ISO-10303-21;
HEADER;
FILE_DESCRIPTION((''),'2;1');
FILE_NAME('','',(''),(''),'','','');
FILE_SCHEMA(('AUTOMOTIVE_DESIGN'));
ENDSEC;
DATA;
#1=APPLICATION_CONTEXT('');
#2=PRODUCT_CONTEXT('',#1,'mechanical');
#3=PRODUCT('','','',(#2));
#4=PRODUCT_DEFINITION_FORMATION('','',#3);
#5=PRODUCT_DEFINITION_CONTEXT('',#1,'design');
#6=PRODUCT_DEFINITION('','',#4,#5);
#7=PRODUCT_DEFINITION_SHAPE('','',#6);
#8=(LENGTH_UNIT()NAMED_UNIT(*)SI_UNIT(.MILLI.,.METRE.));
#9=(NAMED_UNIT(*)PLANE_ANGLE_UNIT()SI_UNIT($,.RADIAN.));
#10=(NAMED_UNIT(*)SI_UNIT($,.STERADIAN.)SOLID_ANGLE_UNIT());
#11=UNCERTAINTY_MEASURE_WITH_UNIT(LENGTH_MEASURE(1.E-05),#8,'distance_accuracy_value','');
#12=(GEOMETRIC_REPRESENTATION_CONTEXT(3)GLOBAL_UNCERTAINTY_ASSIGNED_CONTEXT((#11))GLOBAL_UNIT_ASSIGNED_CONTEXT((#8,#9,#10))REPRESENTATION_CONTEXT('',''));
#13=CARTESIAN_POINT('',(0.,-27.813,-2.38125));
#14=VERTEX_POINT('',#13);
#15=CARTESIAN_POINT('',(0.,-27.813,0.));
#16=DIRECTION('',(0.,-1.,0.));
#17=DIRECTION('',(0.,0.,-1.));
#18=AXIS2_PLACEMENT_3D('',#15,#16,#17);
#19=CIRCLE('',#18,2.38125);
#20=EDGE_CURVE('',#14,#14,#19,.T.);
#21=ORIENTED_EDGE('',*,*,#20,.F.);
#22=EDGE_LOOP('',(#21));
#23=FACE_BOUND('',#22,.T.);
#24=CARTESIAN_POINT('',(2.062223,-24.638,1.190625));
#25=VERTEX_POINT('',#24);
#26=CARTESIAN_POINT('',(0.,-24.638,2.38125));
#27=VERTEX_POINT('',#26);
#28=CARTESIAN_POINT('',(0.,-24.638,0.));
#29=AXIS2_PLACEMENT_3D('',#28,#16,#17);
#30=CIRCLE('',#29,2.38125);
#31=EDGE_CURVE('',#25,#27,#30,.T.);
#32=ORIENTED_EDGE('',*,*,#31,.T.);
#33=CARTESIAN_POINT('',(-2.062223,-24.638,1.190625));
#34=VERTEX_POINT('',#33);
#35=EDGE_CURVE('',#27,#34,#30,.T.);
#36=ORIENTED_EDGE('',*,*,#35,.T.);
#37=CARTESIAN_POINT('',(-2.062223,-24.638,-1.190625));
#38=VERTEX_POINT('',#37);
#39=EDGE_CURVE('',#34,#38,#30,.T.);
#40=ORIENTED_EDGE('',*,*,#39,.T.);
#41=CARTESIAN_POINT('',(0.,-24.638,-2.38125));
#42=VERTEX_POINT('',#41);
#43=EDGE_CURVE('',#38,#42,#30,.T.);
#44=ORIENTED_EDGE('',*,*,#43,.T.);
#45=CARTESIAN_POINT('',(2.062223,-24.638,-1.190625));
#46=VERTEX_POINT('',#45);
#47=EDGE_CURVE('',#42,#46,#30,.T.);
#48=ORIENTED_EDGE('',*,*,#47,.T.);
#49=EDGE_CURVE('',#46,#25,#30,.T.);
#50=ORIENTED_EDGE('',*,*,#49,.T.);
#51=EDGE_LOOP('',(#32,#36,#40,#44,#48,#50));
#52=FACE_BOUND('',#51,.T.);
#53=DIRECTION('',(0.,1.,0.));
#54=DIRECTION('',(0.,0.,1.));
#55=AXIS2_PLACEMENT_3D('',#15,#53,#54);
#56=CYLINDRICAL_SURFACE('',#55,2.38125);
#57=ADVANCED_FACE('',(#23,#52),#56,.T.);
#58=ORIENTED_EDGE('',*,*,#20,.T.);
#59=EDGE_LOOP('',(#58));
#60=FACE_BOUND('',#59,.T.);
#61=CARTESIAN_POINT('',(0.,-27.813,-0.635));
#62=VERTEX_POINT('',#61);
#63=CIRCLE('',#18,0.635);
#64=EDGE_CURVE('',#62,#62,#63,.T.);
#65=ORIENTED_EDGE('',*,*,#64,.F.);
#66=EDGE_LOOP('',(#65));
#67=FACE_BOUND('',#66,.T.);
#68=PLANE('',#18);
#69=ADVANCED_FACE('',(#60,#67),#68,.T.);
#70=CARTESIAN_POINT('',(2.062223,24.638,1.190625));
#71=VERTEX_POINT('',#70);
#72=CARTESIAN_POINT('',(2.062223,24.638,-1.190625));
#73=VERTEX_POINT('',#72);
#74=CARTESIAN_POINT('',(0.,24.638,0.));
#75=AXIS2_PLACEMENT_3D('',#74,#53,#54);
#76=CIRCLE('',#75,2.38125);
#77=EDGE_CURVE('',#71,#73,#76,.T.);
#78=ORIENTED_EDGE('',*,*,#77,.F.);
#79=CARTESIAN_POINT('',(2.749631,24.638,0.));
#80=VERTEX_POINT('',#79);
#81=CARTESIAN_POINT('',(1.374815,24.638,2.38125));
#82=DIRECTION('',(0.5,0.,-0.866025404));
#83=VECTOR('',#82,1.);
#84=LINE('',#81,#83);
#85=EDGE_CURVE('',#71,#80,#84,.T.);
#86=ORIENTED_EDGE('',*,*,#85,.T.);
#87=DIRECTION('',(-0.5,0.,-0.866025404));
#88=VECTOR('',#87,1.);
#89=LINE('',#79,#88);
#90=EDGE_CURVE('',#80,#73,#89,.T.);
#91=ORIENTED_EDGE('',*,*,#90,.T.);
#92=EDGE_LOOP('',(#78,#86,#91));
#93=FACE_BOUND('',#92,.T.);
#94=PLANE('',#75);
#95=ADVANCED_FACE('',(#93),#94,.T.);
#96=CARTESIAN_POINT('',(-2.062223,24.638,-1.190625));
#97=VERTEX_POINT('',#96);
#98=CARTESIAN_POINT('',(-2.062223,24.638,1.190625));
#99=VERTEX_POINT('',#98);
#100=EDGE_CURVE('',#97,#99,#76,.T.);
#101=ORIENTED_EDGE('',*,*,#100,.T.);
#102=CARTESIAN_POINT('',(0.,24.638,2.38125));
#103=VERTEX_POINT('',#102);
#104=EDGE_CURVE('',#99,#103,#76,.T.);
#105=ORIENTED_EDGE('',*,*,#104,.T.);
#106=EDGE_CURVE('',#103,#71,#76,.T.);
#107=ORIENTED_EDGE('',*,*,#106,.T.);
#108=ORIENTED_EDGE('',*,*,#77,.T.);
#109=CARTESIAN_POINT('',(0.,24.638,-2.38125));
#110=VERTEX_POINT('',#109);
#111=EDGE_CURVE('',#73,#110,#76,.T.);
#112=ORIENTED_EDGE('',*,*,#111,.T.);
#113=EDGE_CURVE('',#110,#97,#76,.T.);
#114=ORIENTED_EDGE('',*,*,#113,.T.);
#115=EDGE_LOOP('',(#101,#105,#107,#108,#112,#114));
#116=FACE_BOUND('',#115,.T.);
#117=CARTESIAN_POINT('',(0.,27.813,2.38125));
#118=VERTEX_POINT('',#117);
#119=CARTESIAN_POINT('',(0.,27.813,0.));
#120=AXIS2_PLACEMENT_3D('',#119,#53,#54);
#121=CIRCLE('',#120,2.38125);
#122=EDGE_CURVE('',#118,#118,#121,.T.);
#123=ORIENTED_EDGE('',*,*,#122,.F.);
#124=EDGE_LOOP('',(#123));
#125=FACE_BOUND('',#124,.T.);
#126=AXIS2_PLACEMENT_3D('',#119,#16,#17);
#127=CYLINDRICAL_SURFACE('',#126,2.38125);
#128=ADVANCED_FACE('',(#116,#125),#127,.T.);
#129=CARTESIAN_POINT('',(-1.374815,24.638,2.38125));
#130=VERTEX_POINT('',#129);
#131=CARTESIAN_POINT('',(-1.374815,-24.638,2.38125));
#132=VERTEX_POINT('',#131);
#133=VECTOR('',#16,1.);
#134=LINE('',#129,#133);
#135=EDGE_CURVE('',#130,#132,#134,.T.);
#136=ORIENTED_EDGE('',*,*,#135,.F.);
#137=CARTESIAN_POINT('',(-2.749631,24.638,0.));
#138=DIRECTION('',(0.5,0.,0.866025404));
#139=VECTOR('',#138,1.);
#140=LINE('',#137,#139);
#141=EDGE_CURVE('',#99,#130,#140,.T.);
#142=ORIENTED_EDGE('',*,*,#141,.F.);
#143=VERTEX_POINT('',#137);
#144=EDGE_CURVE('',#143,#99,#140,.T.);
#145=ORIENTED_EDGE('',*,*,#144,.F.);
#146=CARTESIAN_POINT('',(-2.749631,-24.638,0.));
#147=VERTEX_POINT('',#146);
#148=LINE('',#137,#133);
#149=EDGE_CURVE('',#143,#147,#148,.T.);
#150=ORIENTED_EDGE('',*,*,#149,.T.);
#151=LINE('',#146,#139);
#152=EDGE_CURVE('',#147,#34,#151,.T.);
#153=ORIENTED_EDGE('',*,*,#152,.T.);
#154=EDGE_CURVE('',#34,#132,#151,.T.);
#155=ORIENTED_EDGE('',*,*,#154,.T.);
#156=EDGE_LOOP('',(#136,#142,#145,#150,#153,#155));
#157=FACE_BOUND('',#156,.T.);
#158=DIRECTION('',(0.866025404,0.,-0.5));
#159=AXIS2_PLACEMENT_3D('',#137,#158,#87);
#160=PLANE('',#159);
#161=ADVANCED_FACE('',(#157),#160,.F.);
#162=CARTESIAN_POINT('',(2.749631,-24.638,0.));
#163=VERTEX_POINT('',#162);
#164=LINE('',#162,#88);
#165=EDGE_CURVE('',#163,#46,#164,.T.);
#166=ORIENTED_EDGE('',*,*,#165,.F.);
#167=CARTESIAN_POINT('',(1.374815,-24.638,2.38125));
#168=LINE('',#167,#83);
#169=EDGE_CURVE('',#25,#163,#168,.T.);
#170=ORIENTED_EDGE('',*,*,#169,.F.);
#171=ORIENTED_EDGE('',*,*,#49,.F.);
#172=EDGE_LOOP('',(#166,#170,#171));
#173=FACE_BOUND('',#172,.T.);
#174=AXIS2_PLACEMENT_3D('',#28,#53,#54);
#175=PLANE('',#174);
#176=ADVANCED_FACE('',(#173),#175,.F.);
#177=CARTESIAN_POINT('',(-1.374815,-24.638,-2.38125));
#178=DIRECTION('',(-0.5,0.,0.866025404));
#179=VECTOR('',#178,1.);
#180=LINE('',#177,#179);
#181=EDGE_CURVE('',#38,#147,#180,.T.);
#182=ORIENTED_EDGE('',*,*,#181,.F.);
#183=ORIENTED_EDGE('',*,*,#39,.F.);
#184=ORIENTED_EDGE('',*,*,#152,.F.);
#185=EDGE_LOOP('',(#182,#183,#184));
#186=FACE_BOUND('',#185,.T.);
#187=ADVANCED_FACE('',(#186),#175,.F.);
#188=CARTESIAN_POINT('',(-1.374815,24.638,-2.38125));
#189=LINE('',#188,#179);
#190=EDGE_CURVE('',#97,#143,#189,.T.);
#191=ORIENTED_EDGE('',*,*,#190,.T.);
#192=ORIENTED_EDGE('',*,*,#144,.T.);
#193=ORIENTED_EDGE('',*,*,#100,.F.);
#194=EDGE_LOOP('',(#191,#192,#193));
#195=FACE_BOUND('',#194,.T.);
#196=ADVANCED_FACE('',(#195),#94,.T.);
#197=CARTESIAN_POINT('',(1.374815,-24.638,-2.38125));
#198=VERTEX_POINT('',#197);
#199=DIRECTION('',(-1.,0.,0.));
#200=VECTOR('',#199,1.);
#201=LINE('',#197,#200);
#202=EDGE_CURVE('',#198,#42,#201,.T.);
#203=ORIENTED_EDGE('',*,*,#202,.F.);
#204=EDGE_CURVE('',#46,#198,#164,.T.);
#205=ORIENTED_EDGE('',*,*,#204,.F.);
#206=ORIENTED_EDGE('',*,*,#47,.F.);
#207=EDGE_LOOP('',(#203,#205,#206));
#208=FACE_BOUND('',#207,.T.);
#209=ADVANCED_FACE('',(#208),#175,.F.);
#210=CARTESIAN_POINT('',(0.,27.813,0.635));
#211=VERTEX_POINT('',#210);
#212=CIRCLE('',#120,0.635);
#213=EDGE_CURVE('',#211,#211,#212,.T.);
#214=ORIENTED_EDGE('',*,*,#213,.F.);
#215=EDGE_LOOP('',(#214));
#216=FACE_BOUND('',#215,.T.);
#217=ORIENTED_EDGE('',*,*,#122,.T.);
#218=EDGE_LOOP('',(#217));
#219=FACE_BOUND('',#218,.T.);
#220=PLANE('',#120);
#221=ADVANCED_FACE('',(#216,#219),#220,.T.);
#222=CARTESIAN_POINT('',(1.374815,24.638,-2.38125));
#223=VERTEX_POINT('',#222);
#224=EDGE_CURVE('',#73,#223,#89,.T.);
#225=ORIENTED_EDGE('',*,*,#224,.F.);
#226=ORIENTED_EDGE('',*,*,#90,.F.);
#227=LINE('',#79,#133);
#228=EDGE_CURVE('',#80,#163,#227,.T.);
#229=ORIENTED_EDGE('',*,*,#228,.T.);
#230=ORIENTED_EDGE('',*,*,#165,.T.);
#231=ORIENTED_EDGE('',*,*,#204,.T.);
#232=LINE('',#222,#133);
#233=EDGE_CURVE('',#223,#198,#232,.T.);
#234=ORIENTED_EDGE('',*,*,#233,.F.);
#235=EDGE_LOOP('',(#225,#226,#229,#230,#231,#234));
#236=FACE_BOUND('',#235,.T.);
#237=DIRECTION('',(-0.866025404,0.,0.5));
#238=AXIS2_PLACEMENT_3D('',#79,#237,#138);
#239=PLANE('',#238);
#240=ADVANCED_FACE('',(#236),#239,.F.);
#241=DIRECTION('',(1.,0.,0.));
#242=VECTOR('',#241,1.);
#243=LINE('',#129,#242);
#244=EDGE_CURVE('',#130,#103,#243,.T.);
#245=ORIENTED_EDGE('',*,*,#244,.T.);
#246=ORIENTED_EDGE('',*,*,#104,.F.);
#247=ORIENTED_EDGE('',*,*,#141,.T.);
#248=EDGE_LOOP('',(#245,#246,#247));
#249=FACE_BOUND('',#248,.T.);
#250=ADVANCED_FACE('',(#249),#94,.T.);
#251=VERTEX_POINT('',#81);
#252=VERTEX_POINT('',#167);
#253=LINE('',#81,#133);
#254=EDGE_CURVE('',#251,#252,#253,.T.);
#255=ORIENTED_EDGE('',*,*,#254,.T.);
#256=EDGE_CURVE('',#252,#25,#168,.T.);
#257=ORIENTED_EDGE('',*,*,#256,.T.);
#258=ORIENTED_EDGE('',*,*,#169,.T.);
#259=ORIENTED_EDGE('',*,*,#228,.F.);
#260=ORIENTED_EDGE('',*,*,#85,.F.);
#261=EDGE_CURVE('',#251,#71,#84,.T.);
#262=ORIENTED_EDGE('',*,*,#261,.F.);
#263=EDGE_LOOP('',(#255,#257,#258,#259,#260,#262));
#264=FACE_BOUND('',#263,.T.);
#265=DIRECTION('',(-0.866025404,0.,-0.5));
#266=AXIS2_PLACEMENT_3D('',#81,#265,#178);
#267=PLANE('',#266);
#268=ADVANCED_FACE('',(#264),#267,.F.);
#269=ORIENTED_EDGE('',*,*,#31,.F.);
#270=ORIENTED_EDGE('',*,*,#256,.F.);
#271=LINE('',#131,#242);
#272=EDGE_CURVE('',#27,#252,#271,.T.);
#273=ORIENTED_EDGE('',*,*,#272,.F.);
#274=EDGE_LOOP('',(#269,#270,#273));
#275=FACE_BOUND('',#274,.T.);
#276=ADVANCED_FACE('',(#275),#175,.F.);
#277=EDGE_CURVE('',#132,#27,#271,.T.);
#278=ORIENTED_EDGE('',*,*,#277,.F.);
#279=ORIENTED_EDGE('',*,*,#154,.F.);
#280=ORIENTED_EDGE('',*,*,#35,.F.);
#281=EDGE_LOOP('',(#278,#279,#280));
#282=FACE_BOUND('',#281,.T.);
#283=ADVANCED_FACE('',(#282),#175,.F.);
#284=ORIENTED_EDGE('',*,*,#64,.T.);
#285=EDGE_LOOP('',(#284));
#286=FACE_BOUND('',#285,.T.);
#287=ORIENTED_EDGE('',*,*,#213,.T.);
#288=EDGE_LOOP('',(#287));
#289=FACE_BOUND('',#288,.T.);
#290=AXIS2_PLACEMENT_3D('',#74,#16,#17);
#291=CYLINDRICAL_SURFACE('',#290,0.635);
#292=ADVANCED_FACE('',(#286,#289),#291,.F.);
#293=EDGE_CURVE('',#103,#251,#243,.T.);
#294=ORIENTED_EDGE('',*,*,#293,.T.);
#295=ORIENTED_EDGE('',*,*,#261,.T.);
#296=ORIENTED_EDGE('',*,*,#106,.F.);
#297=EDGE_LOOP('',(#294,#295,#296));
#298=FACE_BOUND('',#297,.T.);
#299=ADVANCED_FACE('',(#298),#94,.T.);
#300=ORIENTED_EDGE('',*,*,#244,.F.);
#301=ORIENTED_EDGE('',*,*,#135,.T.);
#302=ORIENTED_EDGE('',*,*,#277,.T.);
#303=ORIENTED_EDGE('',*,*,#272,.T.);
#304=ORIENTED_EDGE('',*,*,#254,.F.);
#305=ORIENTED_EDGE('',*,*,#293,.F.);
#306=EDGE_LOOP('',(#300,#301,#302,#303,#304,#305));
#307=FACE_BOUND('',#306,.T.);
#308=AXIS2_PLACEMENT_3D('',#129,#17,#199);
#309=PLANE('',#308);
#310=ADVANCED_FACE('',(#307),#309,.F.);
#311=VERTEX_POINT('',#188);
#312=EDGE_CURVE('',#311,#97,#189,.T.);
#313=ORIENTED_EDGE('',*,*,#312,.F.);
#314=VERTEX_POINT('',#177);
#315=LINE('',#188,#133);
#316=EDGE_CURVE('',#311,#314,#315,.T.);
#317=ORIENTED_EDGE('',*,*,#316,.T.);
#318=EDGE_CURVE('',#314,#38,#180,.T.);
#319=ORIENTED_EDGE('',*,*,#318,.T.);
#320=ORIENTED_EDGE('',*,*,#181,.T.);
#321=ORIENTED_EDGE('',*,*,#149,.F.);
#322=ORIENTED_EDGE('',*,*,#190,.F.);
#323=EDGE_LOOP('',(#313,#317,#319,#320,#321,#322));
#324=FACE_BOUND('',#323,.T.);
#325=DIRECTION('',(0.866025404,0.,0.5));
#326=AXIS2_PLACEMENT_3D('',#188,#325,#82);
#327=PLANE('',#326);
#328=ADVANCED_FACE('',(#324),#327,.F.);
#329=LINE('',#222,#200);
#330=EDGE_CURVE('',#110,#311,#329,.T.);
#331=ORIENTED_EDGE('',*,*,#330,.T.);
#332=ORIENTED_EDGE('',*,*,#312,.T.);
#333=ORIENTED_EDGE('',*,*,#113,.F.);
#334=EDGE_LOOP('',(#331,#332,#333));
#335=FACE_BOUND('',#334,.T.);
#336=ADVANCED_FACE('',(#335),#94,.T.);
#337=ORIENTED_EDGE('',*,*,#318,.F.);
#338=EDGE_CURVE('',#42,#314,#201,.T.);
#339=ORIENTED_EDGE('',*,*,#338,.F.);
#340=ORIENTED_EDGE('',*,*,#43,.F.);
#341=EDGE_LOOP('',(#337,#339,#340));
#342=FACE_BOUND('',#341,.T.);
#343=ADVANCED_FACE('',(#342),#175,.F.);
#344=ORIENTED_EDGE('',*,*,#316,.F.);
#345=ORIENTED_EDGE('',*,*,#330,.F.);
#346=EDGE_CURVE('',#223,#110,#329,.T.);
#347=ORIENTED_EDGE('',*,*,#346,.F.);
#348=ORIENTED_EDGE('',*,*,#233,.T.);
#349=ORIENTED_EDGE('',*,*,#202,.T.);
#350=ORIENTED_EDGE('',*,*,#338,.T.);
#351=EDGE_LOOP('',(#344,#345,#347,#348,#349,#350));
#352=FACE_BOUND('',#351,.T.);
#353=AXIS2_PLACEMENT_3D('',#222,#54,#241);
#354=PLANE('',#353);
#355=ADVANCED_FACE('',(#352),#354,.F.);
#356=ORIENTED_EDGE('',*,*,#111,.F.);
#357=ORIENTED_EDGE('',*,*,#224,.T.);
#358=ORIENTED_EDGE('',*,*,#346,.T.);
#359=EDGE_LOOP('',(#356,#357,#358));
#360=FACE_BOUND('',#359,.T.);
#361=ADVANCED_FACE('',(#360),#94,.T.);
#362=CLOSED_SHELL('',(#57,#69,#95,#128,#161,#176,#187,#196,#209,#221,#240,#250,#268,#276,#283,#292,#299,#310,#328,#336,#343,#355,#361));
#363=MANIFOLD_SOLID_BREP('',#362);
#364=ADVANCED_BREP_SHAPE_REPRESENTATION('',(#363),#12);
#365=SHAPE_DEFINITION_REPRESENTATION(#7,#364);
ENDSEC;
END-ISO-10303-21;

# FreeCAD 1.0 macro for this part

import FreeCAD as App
import Part
import Sketcher
from FreeCAD import Vector
Q = App.Units.Quantity

doc = App.newDocument("Part")
body = doc.addObject("PartDesign::Body", "Body")

sketch1 = body.newObject("Sketcher::SketchObject", "Sketch")
sketch1.AttachmentSupport = (doc.getObject("XZ_Plane"), [""])
sketch1.MapMode = "FlatFace"
sketch1.addGeometry([
    Part.LineSegment(Vector(1.4, 2.4, 0), Vector(2.7, 0, 0)),
    Part.LineSegment(Vector(2.7, 0, 0), Vector(1.4, -2.4, 0)),
    Part.LineSegment(Vector(1.4, -2.4, 0), Vector(-1.4, -2.4, 0)),
    Part.LineSegment(Vector(-1.4, -2.4, 0), Vector(-2.7, 0, 0)),
    Part.LineSegment(Vector(-2.7, 0, 0), Vector(-1.4, 2.4, 0)),
    Part.LineSegment(Vector(-1.4, 2.4, 0), Vector(1.4, 2.4, 0)),
    Part.Circle(Vector(0, 0, 0), Vector(0, 0, 1), 0.6),
], False)
sketch1.addConstraint([
    Sketcher.Constraint("Coincident", 0, 2, 1, 1),
    Sketcher.Constraint("Coincident", 1, 2, 2, 1),
    Sketcher.Constraint("Coincident", 2, 2, 3, 1),
    Sketcher.Constraint("Coincident", 3, 2, 4, 1),
    Sketcher.Constraint("Coincident", 4, 2, 5, 1),
    Sketcher.Constraint("Coincident", 5, 2, 0, 1),
    Sketcher.Constraint("Horizontal", 2),
    Sketcher.Constraint("Horizontal", 5),
    Sketcher.Constraint("Coincident", 6, 3, -1, 1),
    Sketcher.Constraint("Symmetric", 0, 2, 3, 2, -1, 1),
    Sketcher.Constraint("Symmetric", 1, 2, 4, 2, -1, 1),
    Sketcher.Constraint("PointOnObject", 0, 2, -1),
    Sketcher.Constraint("Parallel", 0, 3),
    Sketcher.Constraint("Vertical", 2, 2, 4, 2),
    Sketcher.Constraint("Diameter", 6, Q("0.05 in")),
    Sketcher.Constraint("Angle", 0, Q("-60 deg")),
    Sketcher.Constraint("DistanceY", 1, 2, -1, 1, Q("0.09375 in")),
    Sketcher.Constraint("DistanceX", 2, 2, 2, 1, Q("2.749631 mm")),
])
pad1 = body.newObject("PartDesign::Pad", "Pad")
pad1.Profile = sketch1
pad1.Length = Q("1.94 in")
pad1.Midplane = True

sketch2 = body.newObject("Sketcher::SketchObject", "Sketch001")
sketch2.AttachmentSupport = (doc.getObject("XZ_Plane"), [""])
sketch2.MapMode = "FlatFace"
sketch2.AttachmentOffset = App.Placement(Vector(0, 0, -0.97 * 25.4), App.Rotation())
sketch2.addGeometry([
    Part.Circle(Vector(0, 0, 0), Vector(0, 0, 1), 2.4),
    Part.Circle(Vector(0, 0, 0), Vector(0, 0, 1), 0.6),
], False)
sketch2.addConstraint([
    Sketcher.Constraint("Coincident", 0, 3, -1, 1),
    Sketcher.Constraint("Coincident", 1, 3, -1, 1),
    Sketcher.Constraint("Diameter", 1, Q("0.05 in")),
    Sketcher.Constraint("Diameter", 0, Q("0.1875 in")),
])
pad2 = body.newObject("PartDesign::Pad", "Pad001")
pad2.Profile = sketch2
pad2.Length = Q("0.125 in")
pad2.Reversed = True

sketch3 = body.newObject("Sketcher::SketchObject", "Sketch002")
sketch3.AttachmentSupport = (doc.getObject("XZ_Plane"), [""])
sketch3.MapMode = "FlatFace"
sketch3.AttachmentOffset = App.Placement(Vector(0, 0, 1.095 * 25.4), App.Rotation())
sketch3.addGeometry([
    Part.Circle(Vector(0, 0, 0), Vector(0, 0, 1), 2.4),
    Part.Circle(Vector(0, 0, 0), Vector(0, 0, 1), 0.6),
], False)
sketch3.addConstraint([
    Sketcher.Constraint("Coincident", 0, 3, -1, 1),
    Sketcher.Constraint("Coincident", 1, 3, -1, 1),
    Sketcher.Constraint("Diameter", 1, Q("0.05 in")),
    Sketcher.Constraint("Diameter", 0, Q("0.1875 in")),
])
pad3 = body.newObject("PartDesign::Pad", "Pad002")
pad3.Profile = sketch3
pad3.Length = Q("0.125 in")
pad3.Reversed = True

doc.recompute()
